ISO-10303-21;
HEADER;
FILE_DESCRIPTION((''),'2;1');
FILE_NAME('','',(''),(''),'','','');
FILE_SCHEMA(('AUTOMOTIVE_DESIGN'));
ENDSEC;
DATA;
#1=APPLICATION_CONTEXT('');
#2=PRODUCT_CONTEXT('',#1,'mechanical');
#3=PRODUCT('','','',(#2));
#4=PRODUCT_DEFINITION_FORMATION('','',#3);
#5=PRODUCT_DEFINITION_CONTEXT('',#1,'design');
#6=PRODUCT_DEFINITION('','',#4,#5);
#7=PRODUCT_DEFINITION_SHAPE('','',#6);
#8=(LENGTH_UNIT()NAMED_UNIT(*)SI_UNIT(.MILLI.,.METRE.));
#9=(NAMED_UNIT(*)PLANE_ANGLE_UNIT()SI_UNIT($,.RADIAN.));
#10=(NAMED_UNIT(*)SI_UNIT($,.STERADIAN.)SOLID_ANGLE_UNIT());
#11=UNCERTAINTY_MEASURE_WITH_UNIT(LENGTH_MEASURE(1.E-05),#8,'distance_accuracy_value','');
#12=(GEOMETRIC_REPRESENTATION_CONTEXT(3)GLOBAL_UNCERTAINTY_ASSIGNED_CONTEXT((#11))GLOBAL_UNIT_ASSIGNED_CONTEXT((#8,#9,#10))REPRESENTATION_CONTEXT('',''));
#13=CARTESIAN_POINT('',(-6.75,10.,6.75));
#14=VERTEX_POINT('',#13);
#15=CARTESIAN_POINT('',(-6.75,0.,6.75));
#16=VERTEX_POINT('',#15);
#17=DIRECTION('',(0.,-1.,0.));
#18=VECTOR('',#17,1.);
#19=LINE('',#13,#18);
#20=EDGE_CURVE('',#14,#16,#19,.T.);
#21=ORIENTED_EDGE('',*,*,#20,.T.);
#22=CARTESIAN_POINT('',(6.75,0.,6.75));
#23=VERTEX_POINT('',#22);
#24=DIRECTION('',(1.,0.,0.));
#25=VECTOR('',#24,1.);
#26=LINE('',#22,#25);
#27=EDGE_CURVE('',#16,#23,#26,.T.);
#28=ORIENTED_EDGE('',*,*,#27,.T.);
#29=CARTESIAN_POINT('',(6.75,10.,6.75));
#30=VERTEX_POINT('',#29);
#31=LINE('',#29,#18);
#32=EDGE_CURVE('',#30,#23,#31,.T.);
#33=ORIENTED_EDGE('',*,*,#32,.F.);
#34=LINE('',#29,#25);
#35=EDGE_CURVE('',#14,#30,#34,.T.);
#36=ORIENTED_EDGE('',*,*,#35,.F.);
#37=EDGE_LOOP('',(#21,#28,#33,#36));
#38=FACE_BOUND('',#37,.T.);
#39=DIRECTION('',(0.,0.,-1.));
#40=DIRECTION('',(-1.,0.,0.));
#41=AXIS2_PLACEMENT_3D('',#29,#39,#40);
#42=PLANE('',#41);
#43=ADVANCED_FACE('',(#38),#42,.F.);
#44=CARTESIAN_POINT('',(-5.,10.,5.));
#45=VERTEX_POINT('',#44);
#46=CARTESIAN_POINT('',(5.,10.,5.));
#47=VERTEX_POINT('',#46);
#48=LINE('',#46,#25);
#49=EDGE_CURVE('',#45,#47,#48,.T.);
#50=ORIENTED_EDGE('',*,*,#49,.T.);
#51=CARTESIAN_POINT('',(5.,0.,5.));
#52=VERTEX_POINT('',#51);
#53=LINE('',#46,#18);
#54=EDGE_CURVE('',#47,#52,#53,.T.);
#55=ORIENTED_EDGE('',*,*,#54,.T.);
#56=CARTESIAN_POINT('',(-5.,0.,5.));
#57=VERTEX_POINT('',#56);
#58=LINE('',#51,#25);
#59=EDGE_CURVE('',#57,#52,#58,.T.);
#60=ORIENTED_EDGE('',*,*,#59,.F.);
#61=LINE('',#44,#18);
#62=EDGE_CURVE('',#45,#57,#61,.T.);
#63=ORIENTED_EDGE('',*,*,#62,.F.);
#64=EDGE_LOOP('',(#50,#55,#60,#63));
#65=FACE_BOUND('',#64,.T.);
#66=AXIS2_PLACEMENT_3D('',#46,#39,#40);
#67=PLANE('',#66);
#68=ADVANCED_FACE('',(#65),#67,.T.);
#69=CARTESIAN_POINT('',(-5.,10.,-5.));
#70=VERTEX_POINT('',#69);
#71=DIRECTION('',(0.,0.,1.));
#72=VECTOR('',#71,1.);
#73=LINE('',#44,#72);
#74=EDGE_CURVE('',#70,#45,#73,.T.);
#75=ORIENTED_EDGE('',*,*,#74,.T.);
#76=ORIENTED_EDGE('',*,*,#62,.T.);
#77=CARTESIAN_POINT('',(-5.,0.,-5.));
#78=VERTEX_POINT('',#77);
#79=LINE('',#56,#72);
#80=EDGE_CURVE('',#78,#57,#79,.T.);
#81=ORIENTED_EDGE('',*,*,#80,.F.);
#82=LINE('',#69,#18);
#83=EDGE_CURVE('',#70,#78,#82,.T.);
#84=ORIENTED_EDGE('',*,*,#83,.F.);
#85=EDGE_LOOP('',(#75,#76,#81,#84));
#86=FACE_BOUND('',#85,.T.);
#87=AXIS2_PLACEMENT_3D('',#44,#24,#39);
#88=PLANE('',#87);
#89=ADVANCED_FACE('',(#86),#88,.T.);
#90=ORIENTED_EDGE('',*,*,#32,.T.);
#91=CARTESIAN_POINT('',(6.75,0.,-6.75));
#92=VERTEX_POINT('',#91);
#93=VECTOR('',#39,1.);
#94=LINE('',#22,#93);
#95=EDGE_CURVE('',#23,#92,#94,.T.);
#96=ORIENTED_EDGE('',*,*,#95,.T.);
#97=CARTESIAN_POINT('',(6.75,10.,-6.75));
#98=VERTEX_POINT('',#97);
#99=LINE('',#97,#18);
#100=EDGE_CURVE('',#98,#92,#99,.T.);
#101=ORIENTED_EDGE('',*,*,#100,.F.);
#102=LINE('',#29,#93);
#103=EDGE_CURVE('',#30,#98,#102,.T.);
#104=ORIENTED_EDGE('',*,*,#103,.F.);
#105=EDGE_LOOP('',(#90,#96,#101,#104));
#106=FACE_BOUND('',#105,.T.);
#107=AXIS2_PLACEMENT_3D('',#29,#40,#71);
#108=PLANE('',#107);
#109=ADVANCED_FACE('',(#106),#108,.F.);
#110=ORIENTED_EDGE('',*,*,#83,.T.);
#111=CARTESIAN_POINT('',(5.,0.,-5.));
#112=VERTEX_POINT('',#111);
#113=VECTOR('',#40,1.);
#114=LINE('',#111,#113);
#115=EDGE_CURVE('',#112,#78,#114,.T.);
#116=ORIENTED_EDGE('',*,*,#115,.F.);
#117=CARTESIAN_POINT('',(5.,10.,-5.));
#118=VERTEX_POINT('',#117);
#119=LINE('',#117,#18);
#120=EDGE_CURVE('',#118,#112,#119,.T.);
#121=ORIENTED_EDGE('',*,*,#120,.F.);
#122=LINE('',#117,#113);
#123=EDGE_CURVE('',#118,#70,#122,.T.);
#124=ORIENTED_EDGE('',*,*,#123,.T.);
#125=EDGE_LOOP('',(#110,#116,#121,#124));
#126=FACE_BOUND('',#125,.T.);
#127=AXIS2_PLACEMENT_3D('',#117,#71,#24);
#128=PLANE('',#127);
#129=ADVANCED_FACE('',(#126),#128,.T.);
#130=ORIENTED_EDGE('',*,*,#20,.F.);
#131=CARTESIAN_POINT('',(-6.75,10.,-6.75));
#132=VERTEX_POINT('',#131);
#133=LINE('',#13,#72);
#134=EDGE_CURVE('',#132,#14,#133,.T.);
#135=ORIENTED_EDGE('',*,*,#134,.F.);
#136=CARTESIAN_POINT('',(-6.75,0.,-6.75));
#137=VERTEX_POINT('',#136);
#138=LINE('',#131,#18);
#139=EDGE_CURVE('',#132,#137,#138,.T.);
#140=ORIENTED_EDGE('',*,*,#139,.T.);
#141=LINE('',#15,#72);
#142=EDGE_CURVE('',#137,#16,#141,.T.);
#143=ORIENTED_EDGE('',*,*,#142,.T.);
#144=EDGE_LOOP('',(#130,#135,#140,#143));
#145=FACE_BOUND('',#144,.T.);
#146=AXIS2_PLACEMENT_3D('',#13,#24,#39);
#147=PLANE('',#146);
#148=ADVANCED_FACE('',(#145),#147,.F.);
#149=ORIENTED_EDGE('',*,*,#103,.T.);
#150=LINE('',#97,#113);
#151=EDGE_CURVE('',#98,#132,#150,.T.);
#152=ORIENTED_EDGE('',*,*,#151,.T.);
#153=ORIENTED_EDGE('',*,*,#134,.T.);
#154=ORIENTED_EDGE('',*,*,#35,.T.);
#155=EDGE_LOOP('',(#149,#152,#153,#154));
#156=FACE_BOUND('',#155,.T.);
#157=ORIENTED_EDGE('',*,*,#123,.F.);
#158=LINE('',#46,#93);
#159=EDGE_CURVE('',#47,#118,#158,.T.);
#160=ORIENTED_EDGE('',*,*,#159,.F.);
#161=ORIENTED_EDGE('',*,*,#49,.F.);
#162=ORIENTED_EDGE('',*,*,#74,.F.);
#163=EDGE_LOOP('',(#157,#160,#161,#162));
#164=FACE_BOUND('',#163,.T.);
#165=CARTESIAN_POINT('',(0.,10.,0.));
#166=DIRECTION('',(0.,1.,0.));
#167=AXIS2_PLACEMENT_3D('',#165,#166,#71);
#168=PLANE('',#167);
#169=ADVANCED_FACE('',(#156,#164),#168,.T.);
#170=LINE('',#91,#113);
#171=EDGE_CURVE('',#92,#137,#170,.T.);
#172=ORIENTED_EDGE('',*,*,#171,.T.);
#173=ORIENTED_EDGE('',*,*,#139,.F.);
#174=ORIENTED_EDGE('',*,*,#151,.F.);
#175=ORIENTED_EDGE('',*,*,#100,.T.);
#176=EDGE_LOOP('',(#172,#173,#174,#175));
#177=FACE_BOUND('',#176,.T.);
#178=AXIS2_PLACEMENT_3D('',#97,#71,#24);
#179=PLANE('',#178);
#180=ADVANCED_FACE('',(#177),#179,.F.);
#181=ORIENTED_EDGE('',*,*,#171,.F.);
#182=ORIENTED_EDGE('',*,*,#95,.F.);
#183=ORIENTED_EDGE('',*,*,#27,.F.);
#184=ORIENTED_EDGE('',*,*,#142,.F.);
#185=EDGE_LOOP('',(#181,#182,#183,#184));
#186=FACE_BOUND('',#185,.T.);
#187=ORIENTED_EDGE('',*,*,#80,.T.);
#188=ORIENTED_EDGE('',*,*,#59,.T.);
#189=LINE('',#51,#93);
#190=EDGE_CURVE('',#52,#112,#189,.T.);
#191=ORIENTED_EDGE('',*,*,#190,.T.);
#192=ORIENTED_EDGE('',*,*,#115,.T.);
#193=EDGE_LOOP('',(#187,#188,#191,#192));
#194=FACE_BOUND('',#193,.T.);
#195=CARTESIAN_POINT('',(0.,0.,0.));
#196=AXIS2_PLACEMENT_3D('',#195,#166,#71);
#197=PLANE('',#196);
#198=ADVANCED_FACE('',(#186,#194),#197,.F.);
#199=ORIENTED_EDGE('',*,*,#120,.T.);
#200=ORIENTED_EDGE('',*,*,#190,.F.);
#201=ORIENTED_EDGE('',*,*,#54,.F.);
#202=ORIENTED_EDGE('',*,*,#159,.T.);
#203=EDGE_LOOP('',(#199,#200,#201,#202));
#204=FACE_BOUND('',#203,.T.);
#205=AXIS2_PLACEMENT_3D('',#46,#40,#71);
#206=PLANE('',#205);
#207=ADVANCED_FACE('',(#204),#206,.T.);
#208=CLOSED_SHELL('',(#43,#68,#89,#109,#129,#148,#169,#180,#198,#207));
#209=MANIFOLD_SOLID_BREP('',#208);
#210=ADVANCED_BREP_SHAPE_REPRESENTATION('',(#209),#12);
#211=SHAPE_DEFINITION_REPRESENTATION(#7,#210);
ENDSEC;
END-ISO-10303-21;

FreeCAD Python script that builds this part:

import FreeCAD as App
import Part
import Sketcher
from FreeCAD import Vector
Q = App.Units.Quantity


def add_polygon(sketch, points):
    """Adds a closed chain of lines whose ends are joined by coincident constraints."""
    first, n = sketch.GeometryCount, len(points)
    for a, b in zip(points, points[1:] + points[:1]):
        sketch.addGeometry(Part.LineSegment(App.Vector(*a, 0), App.Vector(*b, 0)), False)
    for i in range(n):
        sketch.addConstraint(Sketcher.Constraint("Coincident", first + i, 2, first + (i + 1) % n, 1))

doc = App.newDocument("Part")
body = doc.addObject("PartDesign::Body", "Body")

# Sketch on XZ plane
sketch1 = body.newObject("Sketcher::SketchObject", "Sketch")
sketch1.AttachmentSupport = (doc.getObject("XZ_Plane"), [""])
sketch1.MapMode = "FlatFace"
add_polygon(sketch1, [(-7, -7), (-7, 7), (7, 7), (7, -7)])  # lines 0-3
add_polygon(sketch1, [(5, 5), (-5, 5), (-5, -5), (5, -5)])  # lines 4-7
sketch1.addConstraint([
    Sketcher.Constraint("Vertical", 0),
    Sketcher.Constraint("Horizontal", 1),
    Sketcher.Constraint("Vertical", 2),
    Sketcher.Constraint("Horizontal", 3),
    Sketcher.Constraint("Horizontal", 4),
    Sketcher.Constraint("Vertical", 5),
    Sketcher.Constraint("Horizontal", 6),
    Sketcher.Constraint("Vertical", 7),
    Sketcher.Constraint("Symmetric", 0, 2, 2, 2, -1, 1),
    Sketcher.Constraint("Symmetric", 4, 2, 6, 2, -1, 1),
    Sketcher.Constraint("Equal", 3, 0),
    Sketcher.Constraint("Equal", 6, 5),
    Sketcher.Constraint("DistanceX", 4, 2, 4, 1, Q("10 mm")),
    Sketcher.Constraint("DistanceX", 1, 1, 1, 2, Q("13.5 mm")),
])
pad1 = body.newObject("PartDesign::Pad", "Pad")
pad1.Profile = sketch1
pad1.Length = 10
pad1.Reversed = True

doc.recompute()
